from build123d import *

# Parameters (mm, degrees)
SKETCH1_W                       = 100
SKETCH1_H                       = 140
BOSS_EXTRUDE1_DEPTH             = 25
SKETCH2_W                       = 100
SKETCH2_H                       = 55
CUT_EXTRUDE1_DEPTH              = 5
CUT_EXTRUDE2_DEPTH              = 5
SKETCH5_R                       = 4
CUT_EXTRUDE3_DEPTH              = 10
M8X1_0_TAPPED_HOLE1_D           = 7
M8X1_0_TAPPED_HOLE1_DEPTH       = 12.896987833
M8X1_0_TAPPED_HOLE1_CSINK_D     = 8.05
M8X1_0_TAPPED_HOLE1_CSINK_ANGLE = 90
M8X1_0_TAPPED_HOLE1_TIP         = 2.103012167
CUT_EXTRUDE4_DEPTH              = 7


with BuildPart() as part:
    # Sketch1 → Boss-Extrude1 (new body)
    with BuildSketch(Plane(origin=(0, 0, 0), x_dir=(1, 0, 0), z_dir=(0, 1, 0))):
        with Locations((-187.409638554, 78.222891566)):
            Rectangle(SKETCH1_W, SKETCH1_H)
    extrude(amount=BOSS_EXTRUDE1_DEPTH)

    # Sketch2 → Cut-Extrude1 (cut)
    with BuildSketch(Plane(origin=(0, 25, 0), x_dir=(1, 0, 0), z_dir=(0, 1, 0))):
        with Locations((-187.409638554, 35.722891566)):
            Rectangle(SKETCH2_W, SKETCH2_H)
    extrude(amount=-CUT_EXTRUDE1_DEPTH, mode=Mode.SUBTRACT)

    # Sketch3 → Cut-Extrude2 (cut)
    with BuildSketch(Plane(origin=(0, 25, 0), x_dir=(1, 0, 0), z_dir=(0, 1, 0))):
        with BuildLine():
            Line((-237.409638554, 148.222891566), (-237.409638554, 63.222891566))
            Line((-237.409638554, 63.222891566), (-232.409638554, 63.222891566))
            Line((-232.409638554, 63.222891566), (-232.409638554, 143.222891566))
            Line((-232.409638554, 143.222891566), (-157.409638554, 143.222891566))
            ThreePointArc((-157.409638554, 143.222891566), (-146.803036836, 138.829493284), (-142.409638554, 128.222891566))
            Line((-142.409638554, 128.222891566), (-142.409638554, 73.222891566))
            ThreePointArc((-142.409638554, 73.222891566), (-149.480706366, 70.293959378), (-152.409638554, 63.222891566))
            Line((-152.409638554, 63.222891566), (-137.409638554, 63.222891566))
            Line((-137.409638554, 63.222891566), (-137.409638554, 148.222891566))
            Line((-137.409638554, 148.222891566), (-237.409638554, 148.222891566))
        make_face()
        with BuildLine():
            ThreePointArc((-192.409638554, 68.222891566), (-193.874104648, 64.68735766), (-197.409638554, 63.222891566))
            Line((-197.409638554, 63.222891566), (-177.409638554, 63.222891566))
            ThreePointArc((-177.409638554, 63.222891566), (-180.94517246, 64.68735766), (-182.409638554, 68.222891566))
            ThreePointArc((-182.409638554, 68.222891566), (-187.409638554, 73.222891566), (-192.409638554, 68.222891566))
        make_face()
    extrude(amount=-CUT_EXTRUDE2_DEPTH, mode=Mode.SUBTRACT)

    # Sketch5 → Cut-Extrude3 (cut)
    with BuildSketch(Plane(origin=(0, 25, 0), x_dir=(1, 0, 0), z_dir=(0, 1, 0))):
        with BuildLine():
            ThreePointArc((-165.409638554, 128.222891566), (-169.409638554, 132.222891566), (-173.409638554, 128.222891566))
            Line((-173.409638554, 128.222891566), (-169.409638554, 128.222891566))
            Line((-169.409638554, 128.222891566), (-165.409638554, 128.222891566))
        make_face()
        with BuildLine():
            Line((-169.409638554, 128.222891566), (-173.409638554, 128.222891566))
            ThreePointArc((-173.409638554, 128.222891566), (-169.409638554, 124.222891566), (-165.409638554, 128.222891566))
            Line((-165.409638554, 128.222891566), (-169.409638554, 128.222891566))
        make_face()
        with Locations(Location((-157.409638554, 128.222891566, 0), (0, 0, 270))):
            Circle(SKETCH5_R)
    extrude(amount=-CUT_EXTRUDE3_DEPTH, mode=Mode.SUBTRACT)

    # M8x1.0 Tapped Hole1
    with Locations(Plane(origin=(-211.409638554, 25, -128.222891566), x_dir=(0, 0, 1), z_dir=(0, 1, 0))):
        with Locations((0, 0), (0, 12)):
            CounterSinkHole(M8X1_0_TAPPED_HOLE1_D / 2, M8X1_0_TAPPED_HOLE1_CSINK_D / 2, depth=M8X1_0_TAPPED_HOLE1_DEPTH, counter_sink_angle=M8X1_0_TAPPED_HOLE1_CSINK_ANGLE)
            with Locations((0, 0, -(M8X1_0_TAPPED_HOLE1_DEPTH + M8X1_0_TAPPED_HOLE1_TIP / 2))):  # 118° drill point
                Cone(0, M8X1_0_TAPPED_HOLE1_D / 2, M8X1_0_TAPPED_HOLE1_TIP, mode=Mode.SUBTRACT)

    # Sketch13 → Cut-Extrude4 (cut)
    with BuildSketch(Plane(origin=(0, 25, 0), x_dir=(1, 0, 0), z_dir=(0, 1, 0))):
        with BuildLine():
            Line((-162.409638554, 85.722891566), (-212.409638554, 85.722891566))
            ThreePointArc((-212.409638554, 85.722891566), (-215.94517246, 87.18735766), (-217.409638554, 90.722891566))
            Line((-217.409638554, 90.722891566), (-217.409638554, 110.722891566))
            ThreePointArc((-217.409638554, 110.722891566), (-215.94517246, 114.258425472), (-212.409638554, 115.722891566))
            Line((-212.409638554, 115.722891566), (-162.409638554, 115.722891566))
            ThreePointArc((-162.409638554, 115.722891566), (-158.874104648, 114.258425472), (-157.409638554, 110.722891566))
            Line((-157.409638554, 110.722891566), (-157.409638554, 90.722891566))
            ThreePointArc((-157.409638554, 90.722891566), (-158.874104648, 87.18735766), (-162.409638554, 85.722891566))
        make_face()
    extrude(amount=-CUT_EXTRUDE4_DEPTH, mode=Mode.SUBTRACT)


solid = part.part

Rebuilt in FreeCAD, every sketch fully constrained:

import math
import FreeCAD as App
import Part
import Sketcher

V = App.Vector
Q = App.Units.Quantity

doc = App.newDocument("Part")
body = doc.addObject("PartDesign::Body", "Body")

# Sketch on XZ plane
sketch1 = body.newObject("Sketcher::SketchObject", "Sketch")
sketch1.AttachmentSupport = (doc.getObject("XZ_Plane"), [""])
sketch1.MapMode = "FlatFace"
sketch1.addGeometry([
    Part.LineSegment(V(-237.409639, -148.222892, 0), V(-237.409639, -8.222892, 0)),
    Part.LineSegment(V(-237.409639, -8.222892, 0), V(-137.409639, -8.222892, 0)),
    Part.LineSegment(V(-137.409639, -8.222892, 0), V(-137.409639, -148.222892, 0)),
    Part.LineSegment(V(-137.409639, -148.222892, 0), V(-237.409639, -148.222892, 0)),
], False)
sketch1.addConstraint([
    Sketcher.Constraint("Coincident", 0, 2, 1, 1),
    Sketcher.Constraint("Coincident", 1, 2, 2, 1),
    Sketcher.Constraint("Coincident", 2, 2, 3, 1),
    Sketcher.Constraint("Coincident", 3, 2, 0, 1),
    Sketcher.Constraint("Vertical", 0),
    Sketcher.Constraint("Horizontal", 1),
    Sketcher.Constraint("Vertical", 2),
    Sketcher.Constraint("Horizontal", 3),
    Sketcher.Constraint("DistanceX", 1, 1, 1, 2, Q("100 mm")),
    Sketcher.Constraint("DistanceY", 0, 1, 0, 2, Q("140 mm")),
    Sketcher.Constraint("DistanceX", 0, 2, -1, 1, Q("237.409639 mm")),
    Sketcher.Constraint("DistanceY", 0, 2, -1, 1, Q("8.222892 mm")),
])
pad1 = body.newObject("PartDesign::Pad", "Pad")
pad1.Profile = sketch1
pad1.Length = 25
pad1.Reversed = True

# Sketch on XZ plane
sketch2 = body.newObject("Sketcher::SketchObject", "Sketch001")
sketch2.AttachmentSupport = (doc.getObject("XZ_Plane"), [""])
sketch2.MapMode = "FlatFace"
sketch2.AttachmentOffset = App.Placement(V(0, 0, -25), App.Rotation())
sketch2.addGeometry([
    Part.LineSegment(V(-237.409639, -63.222892, 0), V(-237.409639, -8.222892, 0)),
    Part.LineSegment(V(-237.409639, -8.222892, 0), V(-137.409639, -8.222892, 0)),
    Part.LineSegment(V(-137.409639, -8.222892, 0), V(-137.409639, -63.222892, 0)),
    Part.LineSegment(V(-137.409639, -63.222892, 0), V(-237.409639, -63.222892, 0)),
], False)
sketch2.addConstraint([
    Sketcher.Constraint("Coincident", 0, 2, 1, 1),
    Sketcher.Constraint("Coincident", 1, 2, 2, 1),
    Sketcher.Constraint("Coincident", 2, 2, 3, 1),
    Sketcher.Constraint("Coincident", 3, 2, 0, 1),
    Sketcher.Constraint("Vertical", 0),
    Sketcher.Constraint("Horizontal", 1),
    Sketcher.Constraint("Vertical", 2),
    Sketcher.Constraint("Horizontal", 3),
    Sketcher.Constraint("DistanceX", 1, 1, 1, 2, Q("100 mm")),
    Sketcher.Constraint("DistanceY", 0, 1, 0, 2, Q("55 mm")),
    Sketcher.Constraint("DistanceX", 0, 2, -1, 1, Q("237.409639 mm")),
    Sketcher.Constraint("DistanceY", 0, 2, -1, 1, Q("8.222892 mm")),
])
pocket1 = body.newObject("PartDesign::Pocket", "Pocket")
pocket1.Profile = sketch2
pocket1.Length = 5
pocket1.Reversed = True

# Sketch on XZ plane
sketch3 = body.newObject("Sketcher::SketchObject", "Sketch002")
sketch3.AttachmentSupport = (doc.getObject("XZ_Plane"), [""])
sketch3.MapMode = "FlatFace"
sketch3.AttachmentOffset = App.Placement(V(0, 0, -25), App.Rotation())
sketch3.addGeometry([
    Part.LineSegment(V(-237.409639, -148.222892, 0), V(-237.409639, -63.222892, 0)),  # 0
    Part.LineSegment(V(-237.409639, -63.222892, 0), V(-232.409639, -63.222892, 0)),  # 1
    Part.LineSegment(V(-232.409639, -63.222892, 0), V(-232.409639, -143.222892, 0)),  # 2
    Part.LineSegment(V(-232.409639, -143.222892, 0), V(-157.409639, -143.222892, 0)),  # 3
    Part.ArcOfCircle(Part.Circle(V(-157.409639, -128.222892, 0), V(0, 0, 1), 15), math.radians(-90), math.radians(0)),  # 4
    Part.LineSegment(V(-142.409639, -128.222892, 0), V(-142.409639, -73.222892, 0)),  # 5
    Part.ArcOfCircle(Part.Circle(V(-142.409639, -63.222892, 0), V(0, 0, 1), 10), math.radians(180), math.radians(270)),  # 6
    Part.LineSegment(V(-152.409639, -63.222892, 0), V(-137.409639, -63.222892, 0)),  # 7
    Part.LineSegment(V(-137.409639, -63.222892, 0), V(-137.409639, -148.222892, 0)),  # 8
    Part.LineSegment(V(-137.409639, -148.222892, 0), V(-237.409639, -148.222892, 0)),  # 9
    Part.ArcOfCircle(Part.Circle(V(-197.409639, -68.222892, 0), V(0, 0, 1), 5), math.radians(0), math.radians(90)),  # 10
    Part.LineSegment(V(-197.409639, -63.222892, 0), V(-177.409639, -63.222892, 0)),  # 11
    Part.ArcOfCircle(Part.Circle(V(-177.409639, -68.222892, 0), V(0, 0, 1), 5), math.radians(90), math.radians(180)),  # 12
    Part.ArcOfCircle(Part.Circle(V(-187.409639, -68.222892, 0), V(0, 0, 1), 5), math.radians(180), math.radians(360)),  # 13
], False)
sketch3.addConstraint([
    Sketcher.Constraint("Coincident", 0, 2, 1, 1),
    Sketcher.Constraint("Coincident", 1, 2, 2, 1),
    Sketcher.Constraint("Coincident", 2, 2, 3, 1),
    Sketcher.Constraint("Tangent", 3, 2, 4, 1),
    Sketcher.Constraint("Tangent", 4, 2, 5, 1),
    Sketcher.Constraint("Coincident", 5, 2, 6, 2),
    Sketcher.Constraint("Coincident", 6, 1, 7, 1),
    Sketcher.Constraint("Coincident", 7, 2, 8, 1),
    Sketcher.Constraint("Coincident", 8, 2, 9, 1),
    Sketcher.Constraint("Coincident", 9, 2, 0, 1),
    Sketcher.Constraint("Tangent", 10, 2, 11, 1),
    Sketcher.Constraint("Tangent", 11, 2, 12, 1),
    Sketcher.Constraint("Tangent", 12, 2, 13, 2),
    Sketcher.Constraint("Tangent", 13, 1, 10, 1),
    Sketcher.Constraint("Vertical", 0),
    Sketcher.Constraint("Horizontal", 1),
    Sketcher.Constraint("Vertical", 2),
    Sketcher.Constraint("Horizontal", 3),
    Sketcher.Constraint("Vertical", 5),
    Sketcher.Constraint("Horizontal", 7),
    Sketcher.Constraint("Vertical", 8),
    Sketcher.Constraint("Horizontal", 9),
    Sketcher.Constraint("Horizontal", 11),
    Sketcher.Constraint("Equal", 10, 12),
    Sketcher.Constraint("Equal", 12, 13),
    Sketcher.Constraint("Horizontal", 12, 3, 13, 3),
    Sketcher.Constraint("Horizontal", 6, 3, 0, 2),
    Sketcher.Constraint("Horizontal", 1, 2, 6, 1),
    Sketcher.Constraint("Horizontal", 7, 2, 10, 2),
    Sketcher.Constraint("Vertical", 6, 3, 4, 2),
    Sketcher.Constraint("Radius", 4, Q("15 mm")),
    Sketcher.Constraint("Radius", 6, Q("10 mm")),
    Sketcher.Constraint("Radius", 10, Q("5 mm")),
    Sketcher.Constraint("DistanceX", 1, 1, 1, 2, Q("5 mm")),
    Sketcher.Constraint("DistanceX", 3, 1, 3, 2, Q("75 mm")),
    Sketcher.Constraint("DistanceX", 7, 1, 7, 2, Q("15 mm")),
    Sketcher.Constraint("DistanceY", 0, 1, 0, 2, Q("85 mm")),
    Sketcher.Constraint("DistanceY", 2, 2, 2, 1, Q("80 mm")),
    Sketcher.Constraint("DistanceX", 10, 3, 6, 3, Q("55 mm")),
    Sketcher.Constraint("DistanceX", 4, 3, -1, 1, Q("157.409639 mm")),
    Sketcher.Constraint("DistanceY", 4, 3, -1, 1, Q("128.222892 mm")),
])
pocket2 = body.newObject("PartDesign::Pocket", "Pocket001")
pocket2.Profile = sketch3
pocket2.Length = 5
pocket2.Reversed = True

# Sketch on XZ plane
sketch4 = body.newObject("Sketcher::SketchObject", "Sketch003")
sketch4.AttachmentSupport = (doc.getObject("XZ_Plane"), [""])
sketch4.MapMode = "FlatFace"
sketch4.AttachmentOffset = App.Placement(V(0, 0, -25), App.Rotation())
sketch4.addGeometry([
    Part.Circle(V(-169.409639, -128.222892, 0), V(0, 0, 1), 4),
    Part.Circle(V(-157.409639, -128.222892, 0), V(0, 0, 1), 4),
], False)
sketch4.addConstraint([
    Sketcher.Constraint("Equal", 0, 1),
    Sketcher.Constraint("Horizontal", 0, 3, 1, 3),
    Sketcher.Constraint("Diameter", 0, Q("8 mm")),
    Sketcher.Constraint("DistanceX", 0, 3, 1, 3, Q("12 mm")),
    Sketcher.Constraint("DistanceX", 0, 3, -1, 1, Q("169.409639 mm")),
    Sketcher.Constraint("DistanceY", 0, 3, -1, 1, Q("128.222892 mm")),
])
pocket3 = body.newObject("PartDesign::Pocket", "Pocket002")
pocket3.Profile = sketch4
pocket3.Length = 10
pocket3.Reversed = True

# Sketch on XZ plane
sketch5 = body.newObject("Sketcher::SketchObject", "Sketch004")
sketch5.AttachmentSupport = (doc.getObject("XZ_Plane"), [""])
sketch5.MapMode = "FlatFace"
sketch5.AttachmentOffset = App.Placement(V(0, 0, -25), App.Rotation())
sketch5.addGeometry([
    Part.Circle(V(-211.409639, -128.222892, 0), V(0, 0, 1), 3.5),
    Part.Circle(V(-199.409639, -128.222892, 0), V(0, 0, 1), 3.5),
], False)
sketch5.addConstraint([
    Sketcher.Constraint("Equal", 0, 1),
    Sketcher.Constraint("Horizontal", 0, 3, 1, 3),
    Sketcher.Constraint("Diameter", 0, Q("7 mm")),
    Sketcher.Constraint("DistanceX", 0, 3, 1, 3, Q("12 mm")),
    Sketcher.Constraint("DistanceX", 0, 3, -1, 1, Q("211.409639 mm")),
    Sketcher.Constraint("DistanceY", 0, 3, -1, 1, Q("128.222892 mm")),
])
doc.recompute()
hole = body.newObject("PartDesign::Hole", "Hole")
hole.Profile = sketch5
hole.ThreadType = "None"
hole.Diameter = 7
hole.DepthType = "Dimension"
hole.Depth = 12.896988
hole.DrillPoint = "Angled"
hole.DrillPointAngle = 118
hole.HoleCutType = "Countersink"
hole.HoleCutDiameter = 8.05
hole.HoleCutCountersinkAngle = 90
hole.Reversed = True

# Sketch on XZ plane
sketch6 = body.newObject("Sketcher::SketchObject", "Sketch005")
sketch6.AttachmentSupport = (doc.getObject("XZ_Plane"), [""])
sketch6.MapMode = "FlatFace"
sketch6.AttachmentOffset = App.Placement(V(0, 0, -25), App.Rotation())
sketch6.addGeometry([
    Part.LineSegment(V(-212.409639, -85.722892, 0), V(-162.409639, -85.722892, 0)),  # 0
    Part.ArcOfCircle(Part.Circle(V(-162.409639, -90.722892, 0), V(0, 0, 1), 5), math.radians(0), math.radians(90)),  # 1
    Part.LineSegment(V(-157.409639, -90.722892, 0), V(-157.409639, -110.722892, 0)),  # 2
    Part.ArcOfCircle(Part.Circle(V(-162.409639, -110.722892, 0), V(0, 0, 1), 5), math.radians(-90), math.radians(0)),  # 3
    Part.LineSegment(V(-162.409639, -115.722892, 0), V(-212.409639, -115.722892, 0)),  # 4
    Part.ArcOfCircle(Part.Circle(V(-212.409639, -110.722892, 0), V(0, 0, 1), 5), math.radians(180), math.radians(270)),  # 5
    Part.LineSegment(V(-217.409639, -110.722892, 0), V(-217.409639, -90.722892, 0)),  # 6
    Part.ArcOfCircle(Part.Circle(V(-212.409639, -90.722892, 0), V(0, 0, 1), 5), math.radians(90), math.radians(180)),  # 7
], False)
sketch6.addConstraint([
    Sketcher.Constraint("Tangent", 0, 2, 1, 2),
    Sketcher.Constraint("Tangent", 1, 1, 2, 1),
    Sketcher.Constraint("Tangent", 2, 2, 3, 2),
    Sketcher.Constraint("Tangent", 3, 1, 4, 1),
    Sketcher.Constraint("Tangent", 4, 2, 5, 2),
    Sketcher.Constraint("Tangent", 5, 1, 6, 1),
    Sketcher.Constraint("Tangent", 6, 2, 7, 2),
    Sketcher.Constraint("Tangent", 7, 1, 0, 1),
    Sketcher.Constraint("Horizontal", 0),
    Sketcher.Constraint("Vertical", 2),
    Sketcher.Constraint("Horizontal", 4),
    Sketcher.Constraint("Vertical", 6),
    Sketcher.Constraint("Equal", 1, 3),
    Sketcher.Constraint("Equal", 3, 5),
    Sketcher.Constraint("Equal", 5, 7),
    Sketcher.Constraint("Radius", 1, Q("5 mm")),
    Sketcher.Constraint("DistanceX", 0, 1, 0, 2, Q("50 mm")),
    Sketcher.Constraint("DistanceY", 2, 2, 2, 1, Q("20 mm")),
    Sketcher.Constraint("DistanceX", 1, 3, -1, 1, Q("162.409639 mm")),
    Sketcher.Constraint("DistanceY", 1, 3, -1, 1, Q("90.722892 mm")),
])
pocket4 = body.newObject("PartDesign::Pocket", "Pocket003")
pocket4.Profile = sketch6
pocket4.Length = 7
pocket4.Reversed = True

doc.recompute()
